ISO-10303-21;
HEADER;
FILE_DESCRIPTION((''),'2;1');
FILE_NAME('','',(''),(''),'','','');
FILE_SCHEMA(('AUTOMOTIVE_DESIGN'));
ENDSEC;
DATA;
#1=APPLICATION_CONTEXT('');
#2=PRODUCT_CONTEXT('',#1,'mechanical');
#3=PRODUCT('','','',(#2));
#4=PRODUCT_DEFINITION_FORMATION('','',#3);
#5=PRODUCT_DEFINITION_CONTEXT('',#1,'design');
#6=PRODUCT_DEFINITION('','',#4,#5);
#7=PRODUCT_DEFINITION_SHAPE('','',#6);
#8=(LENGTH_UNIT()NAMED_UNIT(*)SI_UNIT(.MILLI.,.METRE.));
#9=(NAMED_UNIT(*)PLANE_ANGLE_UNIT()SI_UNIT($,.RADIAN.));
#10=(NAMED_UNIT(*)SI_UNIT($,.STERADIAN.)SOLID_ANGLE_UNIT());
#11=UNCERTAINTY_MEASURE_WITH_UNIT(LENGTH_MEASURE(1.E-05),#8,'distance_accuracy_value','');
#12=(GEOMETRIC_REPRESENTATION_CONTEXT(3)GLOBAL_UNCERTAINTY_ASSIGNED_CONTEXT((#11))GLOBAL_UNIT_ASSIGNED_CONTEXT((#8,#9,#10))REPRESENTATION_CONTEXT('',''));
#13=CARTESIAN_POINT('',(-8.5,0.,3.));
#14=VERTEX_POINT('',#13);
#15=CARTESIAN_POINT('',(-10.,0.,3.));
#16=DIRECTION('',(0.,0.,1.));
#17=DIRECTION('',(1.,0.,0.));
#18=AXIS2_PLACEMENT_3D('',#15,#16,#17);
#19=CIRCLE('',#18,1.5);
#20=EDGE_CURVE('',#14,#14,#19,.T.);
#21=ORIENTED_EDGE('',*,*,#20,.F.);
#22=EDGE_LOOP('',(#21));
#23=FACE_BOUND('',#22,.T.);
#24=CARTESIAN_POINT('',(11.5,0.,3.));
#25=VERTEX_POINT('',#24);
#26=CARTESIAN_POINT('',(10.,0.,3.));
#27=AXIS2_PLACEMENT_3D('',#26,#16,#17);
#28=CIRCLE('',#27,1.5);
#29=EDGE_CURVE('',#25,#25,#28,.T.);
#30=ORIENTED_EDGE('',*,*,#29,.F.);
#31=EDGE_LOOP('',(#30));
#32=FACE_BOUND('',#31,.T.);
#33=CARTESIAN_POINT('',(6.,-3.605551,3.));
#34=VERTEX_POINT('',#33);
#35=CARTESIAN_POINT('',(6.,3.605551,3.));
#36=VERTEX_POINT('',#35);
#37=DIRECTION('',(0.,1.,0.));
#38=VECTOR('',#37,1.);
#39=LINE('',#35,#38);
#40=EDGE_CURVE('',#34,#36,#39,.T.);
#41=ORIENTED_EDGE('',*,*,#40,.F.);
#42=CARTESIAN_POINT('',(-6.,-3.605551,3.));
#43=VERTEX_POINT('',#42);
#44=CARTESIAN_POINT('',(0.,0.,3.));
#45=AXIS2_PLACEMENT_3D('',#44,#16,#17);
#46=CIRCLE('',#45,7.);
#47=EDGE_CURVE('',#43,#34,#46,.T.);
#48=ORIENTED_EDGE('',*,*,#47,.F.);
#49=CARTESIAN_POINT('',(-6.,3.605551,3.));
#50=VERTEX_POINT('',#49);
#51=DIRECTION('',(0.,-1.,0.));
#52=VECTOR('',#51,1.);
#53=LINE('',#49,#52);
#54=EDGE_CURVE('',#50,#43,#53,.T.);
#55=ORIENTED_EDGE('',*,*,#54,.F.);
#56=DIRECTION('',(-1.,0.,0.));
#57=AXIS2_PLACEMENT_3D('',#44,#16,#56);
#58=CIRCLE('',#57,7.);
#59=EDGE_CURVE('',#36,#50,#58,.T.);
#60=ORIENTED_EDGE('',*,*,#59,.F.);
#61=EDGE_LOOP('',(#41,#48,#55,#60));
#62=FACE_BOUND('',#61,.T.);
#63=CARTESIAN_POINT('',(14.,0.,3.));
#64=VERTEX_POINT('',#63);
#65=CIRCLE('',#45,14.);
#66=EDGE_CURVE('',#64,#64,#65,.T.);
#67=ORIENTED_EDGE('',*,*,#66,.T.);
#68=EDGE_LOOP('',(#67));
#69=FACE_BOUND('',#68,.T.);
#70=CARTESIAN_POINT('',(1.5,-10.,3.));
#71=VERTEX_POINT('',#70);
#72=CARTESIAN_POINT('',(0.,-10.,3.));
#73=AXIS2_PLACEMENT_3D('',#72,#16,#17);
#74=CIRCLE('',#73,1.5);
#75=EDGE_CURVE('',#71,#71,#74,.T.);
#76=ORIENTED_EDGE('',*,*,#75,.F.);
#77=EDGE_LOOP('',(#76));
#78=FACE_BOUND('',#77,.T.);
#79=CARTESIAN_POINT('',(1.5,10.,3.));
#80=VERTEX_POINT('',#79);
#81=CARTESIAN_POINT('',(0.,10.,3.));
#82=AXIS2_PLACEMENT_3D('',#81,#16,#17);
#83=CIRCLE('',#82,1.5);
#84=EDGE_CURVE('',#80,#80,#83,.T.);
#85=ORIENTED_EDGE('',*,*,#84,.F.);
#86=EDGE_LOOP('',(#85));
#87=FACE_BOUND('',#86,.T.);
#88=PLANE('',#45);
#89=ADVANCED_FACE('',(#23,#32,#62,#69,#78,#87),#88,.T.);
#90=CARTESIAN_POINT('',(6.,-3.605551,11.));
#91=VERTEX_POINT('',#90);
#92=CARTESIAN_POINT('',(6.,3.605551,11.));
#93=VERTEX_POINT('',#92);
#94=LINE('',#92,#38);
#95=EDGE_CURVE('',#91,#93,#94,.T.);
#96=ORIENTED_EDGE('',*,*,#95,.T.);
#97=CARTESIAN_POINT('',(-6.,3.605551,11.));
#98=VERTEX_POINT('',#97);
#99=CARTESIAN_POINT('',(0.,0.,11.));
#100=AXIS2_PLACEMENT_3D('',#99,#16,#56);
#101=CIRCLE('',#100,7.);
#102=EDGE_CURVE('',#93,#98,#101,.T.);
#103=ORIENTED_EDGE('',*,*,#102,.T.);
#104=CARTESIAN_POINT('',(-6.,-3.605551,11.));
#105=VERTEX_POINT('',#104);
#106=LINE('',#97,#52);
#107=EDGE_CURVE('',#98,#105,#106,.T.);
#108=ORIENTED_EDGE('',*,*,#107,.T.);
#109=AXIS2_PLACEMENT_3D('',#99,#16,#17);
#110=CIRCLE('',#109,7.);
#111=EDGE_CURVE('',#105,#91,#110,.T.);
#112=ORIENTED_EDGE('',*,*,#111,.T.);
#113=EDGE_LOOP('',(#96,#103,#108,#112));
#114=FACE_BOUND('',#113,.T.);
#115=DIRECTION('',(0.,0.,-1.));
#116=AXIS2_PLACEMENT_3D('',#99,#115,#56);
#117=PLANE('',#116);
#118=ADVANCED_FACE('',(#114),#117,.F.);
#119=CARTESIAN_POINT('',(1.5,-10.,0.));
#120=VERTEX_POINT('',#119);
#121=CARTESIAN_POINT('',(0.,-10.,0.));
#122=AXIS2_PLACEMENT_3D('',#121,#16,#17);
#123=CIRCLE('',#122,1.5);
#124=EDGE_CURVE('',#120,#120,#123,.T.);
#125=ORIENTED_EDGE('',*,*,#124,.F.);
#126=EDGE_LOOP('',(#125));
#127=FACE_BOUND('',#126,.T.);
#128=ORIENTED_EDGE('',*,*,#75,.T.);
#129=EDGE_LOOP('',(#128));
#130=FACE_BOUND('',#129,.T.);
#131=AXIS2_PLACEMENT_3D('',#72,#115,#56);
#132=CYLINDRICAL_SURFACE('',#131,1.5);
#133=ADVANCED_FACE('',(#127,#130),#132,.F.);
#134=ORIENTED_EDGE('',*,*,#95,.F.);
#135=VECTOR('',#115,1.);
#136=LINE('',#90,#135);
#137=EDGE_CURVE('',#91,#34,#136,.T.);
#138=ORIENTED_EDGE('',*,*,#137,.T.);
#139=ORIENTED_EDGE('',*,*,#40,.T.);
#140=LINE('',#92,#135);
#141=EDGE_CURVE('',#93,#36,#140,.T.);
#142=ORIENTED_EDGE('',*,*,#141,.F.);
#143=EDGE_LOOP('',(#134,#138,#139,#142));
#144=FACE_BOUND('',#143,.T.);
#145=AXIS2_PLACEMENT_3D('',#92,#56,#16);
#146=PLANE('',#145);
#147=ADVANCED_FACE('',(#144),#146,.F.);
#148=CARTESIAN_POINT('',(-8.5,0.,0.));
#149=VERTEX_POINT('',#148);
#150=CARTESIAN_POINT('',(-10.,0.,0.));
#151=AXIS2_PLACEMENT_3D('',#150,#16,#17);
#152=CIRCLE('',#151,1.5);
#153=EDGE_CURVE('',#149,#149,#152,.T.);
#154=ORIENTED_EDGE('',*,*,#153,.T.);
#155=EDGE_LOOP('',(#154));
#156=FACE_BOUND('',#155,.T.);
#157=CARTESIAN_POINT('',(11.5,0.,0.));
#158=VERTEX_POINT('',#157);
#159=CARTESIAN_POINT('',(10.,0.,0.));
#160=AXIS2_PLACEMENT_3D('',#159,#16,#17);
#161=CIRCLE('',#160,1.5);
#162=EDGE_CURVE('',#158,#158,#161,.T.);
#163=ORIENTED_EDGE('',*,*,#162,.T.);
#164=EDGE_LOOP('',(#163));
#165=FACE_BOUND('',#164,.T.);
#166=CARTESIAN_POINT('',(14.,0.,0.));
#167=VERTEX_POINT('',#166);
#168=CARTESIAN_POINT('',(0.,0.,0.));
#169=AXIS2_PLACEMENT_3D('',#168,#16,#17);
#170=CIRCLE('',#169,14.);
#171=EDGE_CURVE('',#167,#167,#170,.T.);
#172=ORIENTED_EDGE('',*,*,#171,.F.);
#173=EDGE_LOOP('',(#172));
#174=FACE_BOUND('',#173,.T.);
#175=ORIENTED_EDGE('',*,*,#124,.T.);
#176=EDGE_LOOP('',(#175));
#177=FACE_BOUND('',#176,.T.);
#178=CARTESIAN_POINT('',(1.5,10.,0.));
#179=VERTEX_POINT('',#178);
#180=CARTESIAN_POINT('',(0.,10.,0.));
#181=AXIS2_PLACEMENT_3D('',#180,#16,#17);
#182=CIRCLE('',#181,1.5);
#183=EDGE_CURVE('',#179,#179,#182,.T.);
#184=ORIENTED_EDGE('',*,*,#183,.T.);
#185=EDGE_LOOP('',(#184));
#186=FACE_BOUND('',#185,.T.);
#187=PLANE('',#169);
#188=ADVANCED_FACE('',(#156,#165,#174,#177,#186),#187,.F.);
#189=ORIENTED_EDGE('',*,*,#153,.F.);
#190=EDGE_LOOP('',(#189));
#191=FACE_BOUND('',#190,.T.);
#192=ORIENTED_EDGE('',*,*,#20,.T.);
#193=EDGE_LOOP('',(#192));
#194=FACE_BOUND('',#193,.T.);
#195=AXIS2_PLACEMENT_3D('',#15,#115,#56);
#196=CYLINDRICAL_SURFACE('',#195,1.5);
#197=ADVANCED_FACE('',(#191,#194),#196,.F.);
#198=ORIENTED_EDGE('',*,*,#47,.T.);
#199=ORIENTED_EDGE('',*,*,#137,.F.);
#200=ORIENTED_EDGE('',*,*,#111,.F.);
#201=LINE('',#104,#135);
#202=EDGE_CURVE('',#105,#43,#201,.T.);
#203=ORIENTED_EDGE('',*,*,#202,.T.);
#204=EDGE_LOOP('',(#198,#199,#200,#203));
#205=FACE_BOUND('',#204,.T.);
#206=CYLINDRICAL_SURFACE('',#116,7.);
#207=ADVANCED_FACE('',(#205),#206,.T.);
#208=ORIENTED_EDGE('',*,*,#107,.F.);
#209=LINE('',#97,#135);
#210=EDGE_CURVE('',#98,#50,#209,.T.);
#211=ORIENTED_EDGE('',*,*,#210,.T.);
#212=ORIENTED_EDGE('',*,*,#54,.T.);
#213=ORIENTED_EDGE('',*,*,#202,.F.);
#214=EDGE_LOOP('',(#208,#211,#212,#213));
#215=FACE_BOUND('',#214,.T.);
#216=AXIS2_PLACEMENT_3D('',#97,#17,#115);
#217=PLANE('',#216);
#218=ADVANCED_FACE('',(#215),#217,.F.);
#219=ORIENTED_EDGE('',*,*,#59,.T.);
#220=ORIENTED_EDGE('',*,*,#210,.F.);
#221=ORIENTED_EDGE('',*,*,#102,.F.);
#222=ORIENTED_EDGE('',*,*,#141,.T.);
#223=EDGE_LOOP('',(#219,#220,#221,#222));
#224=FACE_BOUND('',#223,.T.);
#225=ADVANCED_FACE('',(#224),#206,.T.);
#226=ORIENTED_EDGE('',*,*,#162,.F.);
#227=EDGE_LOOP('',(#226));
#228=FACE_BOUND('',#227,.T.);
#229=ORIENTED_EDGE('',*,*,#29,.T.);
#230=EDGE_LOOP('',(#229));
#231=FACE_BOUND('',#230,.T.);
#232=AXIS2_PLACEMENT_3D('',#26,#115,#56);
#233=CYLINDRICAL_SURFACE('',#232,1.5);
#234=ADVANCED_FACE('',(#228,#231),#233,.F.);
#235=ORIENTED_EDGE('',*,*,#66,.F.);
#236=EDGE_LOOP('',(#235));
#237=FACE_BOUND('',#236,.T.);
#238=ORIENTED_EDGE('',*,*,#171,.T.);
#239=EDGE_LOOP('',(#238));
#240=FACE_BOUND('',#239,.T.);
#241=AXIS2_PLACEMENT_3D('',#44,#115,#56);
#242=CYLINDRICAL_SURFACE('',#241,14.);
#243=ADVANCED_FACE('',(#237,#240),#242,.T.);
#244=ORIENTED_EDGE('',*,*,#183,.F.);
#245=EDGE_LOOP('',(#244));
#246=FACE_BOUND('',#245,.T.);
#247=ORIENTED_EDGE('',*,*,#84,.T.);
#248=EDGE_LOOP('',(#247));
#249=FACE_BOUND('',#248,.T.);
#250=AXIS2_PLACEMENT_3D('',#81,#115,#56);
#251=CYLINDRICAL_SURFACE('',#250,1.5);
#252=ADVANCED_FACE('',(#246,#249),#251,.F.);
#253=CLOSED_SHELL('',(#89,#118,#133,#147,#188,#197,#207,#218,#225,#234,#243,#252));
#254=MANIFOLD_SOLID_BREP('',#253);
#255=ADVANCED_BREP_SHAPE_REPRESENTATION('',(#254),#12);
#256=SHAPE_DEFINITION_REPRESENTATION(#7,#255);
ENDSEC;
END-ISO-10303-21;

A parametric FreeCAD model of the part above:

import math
import FreeCAD as App
import Part
import Sketcher

V = App.Vector
Q = App.Units.Quantity

doc = App.newDocument("Part")
body = doc.addObject("PartDesign::Body", "Body")

# Sketch on XY plane
sketch1 = doc.addObject("Sketcher::SketchObject", "Sketch")
body.addObject(sketch1)
sketch1.AttachmentSupport = (doc.XY_Plane, [""])
sketch1.MapMode = "FlatFace"
sketch1.addGeometry(Part.Circle(V(0, 0, 0), V(0, 0, 1), 14), False)
sketch1.addGeometry(Part.Circle(V(0, -10, 0), V(0, 0, 1), 1.5), False)
sketch1.addGeometry(Part.Circle(V(-10, 0, 0), V(0, 0, 1), 1.5), False)
sketch1.addGeometry(Part.Circle(V(10, 0, 0), V(0, 0, 1), 1.5), False)
sketch1.addGeometry(Part.Circle(V(0, 10, 0), V(0, 0, 1), 1.5), False)
sketch1.addConstraint(Sketcher.Constraint("Coincident", 0, 3, -1, 1))
sketch1.addConstraint(Sketcher.Constraint("Equal", 1, 2))
sketch1.addConstraint(Sketcher.Constraint("Equal", 2, 3))
sketch1.addConstraint(Sketcher.Constraint("Equal", 3, 4))
sketch1.addConstraint(Sketcher.Constraint("Symmetric", 2, 3, 3, 3, -1, 1))
sketch1.addConstraint(Sketcher.Constraint("Symmetric", 1, 3, 4, 3, -1, 1))
sketch1.addConstraint(Sketcher.Constraint("PointOnObject", 1, 3, -2))
sketch1.addConstraint(Sketcher.Constraint("PointOnObject", 2, 3, -1))
sketch1.addConstraint(Sketcher.Constraint("Diameter", 0, Q("28 mm")))
sketch1.addConstraint(Sketcher.Constraint("Diameter", 1, Q("3 mm")))
sketch1.addConstraint(Sketcher.Constraint("DistanceY", 1, 3, -1, 1, Q("10 mm")))
sketch1.addConstraint(Sketcher.Constraint("DistanceX", 2, 3, -1, 1, Q("10 mm")))
pad1 = doc.addObject("PartDesign::Pad", "Pad")
body.addObject(pad1)
pad1.Profile = sketch1
pad1.Length = 3

# Sketch on XY plane
sketch2 = doc.addObject("Sketcher::SketchObject", "Sketch001")
body.addObject(sketch2)
sketch2.AttachmentSupport = (doc.XY_Plane, [""])
sketch2.MapMode = "FlatFace"
sketch2.AttachmentOffset = App.Placement(V(0, 0, 3), App.Rotation())
sketch2.addGeometry(Part.LineSegment(V(6, -4, 0), V(6, 4, 0)), False)
sketch2.addGeometry(Part.ArcOfCircle(Part.Circle(V(0, 0, 0), V(0, 0, 1), 7), math.radians(31), math.radians(149)), False)
sketch2.addGeometry(Part.LineSegment(V(-6, 4, 0), V(-6, -4, 0)), False)
sketch2.addGeometry(Part.ArcOfCircle(Part.Circle(V(0, 0, 0), V(0, 0, 1), 7), math.radians(-149), math.radians(-31)), False)
sketch2.addConstraint(Sketcher.Constraint("Coincident", 0, 2, 1, 1))
sketch2.addConstraint(Sketcher.Constraint("Coincident", 1, 2, 2, 1))
sketch2.addConstraint(Sketcher.Constraint("Coincident", 2, 2, 3, 1))
sketch2.addConstraint(Sketcher.Constraint("Coincident", 3, 2, 0, 1))
sketch2.addConstraint(Sketcher.Constraint("Vertical", 0))
sketch2.addConstraint(Sketcher.Constraint("Vertical", 2))
sketch2.addConstraint(Sketcher.Constraint("Coincident", 1, 3, -1, 1))
sketch2.addConstraint(Sketcher.Constraint("Coincident", 3, 3, -1, 1))
sketch2.addConstraint(Sketcher.Constraint("Equal", 1, 3))
sketch2.addConstraint(Sketcher.Constraint("Horizontal", 0, 2, 1, 2))
sketch2.addConstraint(Sketcher.Constraint("Radius", 1, Q("7 mm")))
sketch2.addConstraint(Sketcher.Constraint("DistanceX", -1, 1, 0, 2, Q("6 mm")))
pad2 = doc.addObject("PartDesign::Pad", "Pad001")
body.addObject(pad2)
pad2.Profile = sketch2
pad2.Length = 8

doc.recompute()
